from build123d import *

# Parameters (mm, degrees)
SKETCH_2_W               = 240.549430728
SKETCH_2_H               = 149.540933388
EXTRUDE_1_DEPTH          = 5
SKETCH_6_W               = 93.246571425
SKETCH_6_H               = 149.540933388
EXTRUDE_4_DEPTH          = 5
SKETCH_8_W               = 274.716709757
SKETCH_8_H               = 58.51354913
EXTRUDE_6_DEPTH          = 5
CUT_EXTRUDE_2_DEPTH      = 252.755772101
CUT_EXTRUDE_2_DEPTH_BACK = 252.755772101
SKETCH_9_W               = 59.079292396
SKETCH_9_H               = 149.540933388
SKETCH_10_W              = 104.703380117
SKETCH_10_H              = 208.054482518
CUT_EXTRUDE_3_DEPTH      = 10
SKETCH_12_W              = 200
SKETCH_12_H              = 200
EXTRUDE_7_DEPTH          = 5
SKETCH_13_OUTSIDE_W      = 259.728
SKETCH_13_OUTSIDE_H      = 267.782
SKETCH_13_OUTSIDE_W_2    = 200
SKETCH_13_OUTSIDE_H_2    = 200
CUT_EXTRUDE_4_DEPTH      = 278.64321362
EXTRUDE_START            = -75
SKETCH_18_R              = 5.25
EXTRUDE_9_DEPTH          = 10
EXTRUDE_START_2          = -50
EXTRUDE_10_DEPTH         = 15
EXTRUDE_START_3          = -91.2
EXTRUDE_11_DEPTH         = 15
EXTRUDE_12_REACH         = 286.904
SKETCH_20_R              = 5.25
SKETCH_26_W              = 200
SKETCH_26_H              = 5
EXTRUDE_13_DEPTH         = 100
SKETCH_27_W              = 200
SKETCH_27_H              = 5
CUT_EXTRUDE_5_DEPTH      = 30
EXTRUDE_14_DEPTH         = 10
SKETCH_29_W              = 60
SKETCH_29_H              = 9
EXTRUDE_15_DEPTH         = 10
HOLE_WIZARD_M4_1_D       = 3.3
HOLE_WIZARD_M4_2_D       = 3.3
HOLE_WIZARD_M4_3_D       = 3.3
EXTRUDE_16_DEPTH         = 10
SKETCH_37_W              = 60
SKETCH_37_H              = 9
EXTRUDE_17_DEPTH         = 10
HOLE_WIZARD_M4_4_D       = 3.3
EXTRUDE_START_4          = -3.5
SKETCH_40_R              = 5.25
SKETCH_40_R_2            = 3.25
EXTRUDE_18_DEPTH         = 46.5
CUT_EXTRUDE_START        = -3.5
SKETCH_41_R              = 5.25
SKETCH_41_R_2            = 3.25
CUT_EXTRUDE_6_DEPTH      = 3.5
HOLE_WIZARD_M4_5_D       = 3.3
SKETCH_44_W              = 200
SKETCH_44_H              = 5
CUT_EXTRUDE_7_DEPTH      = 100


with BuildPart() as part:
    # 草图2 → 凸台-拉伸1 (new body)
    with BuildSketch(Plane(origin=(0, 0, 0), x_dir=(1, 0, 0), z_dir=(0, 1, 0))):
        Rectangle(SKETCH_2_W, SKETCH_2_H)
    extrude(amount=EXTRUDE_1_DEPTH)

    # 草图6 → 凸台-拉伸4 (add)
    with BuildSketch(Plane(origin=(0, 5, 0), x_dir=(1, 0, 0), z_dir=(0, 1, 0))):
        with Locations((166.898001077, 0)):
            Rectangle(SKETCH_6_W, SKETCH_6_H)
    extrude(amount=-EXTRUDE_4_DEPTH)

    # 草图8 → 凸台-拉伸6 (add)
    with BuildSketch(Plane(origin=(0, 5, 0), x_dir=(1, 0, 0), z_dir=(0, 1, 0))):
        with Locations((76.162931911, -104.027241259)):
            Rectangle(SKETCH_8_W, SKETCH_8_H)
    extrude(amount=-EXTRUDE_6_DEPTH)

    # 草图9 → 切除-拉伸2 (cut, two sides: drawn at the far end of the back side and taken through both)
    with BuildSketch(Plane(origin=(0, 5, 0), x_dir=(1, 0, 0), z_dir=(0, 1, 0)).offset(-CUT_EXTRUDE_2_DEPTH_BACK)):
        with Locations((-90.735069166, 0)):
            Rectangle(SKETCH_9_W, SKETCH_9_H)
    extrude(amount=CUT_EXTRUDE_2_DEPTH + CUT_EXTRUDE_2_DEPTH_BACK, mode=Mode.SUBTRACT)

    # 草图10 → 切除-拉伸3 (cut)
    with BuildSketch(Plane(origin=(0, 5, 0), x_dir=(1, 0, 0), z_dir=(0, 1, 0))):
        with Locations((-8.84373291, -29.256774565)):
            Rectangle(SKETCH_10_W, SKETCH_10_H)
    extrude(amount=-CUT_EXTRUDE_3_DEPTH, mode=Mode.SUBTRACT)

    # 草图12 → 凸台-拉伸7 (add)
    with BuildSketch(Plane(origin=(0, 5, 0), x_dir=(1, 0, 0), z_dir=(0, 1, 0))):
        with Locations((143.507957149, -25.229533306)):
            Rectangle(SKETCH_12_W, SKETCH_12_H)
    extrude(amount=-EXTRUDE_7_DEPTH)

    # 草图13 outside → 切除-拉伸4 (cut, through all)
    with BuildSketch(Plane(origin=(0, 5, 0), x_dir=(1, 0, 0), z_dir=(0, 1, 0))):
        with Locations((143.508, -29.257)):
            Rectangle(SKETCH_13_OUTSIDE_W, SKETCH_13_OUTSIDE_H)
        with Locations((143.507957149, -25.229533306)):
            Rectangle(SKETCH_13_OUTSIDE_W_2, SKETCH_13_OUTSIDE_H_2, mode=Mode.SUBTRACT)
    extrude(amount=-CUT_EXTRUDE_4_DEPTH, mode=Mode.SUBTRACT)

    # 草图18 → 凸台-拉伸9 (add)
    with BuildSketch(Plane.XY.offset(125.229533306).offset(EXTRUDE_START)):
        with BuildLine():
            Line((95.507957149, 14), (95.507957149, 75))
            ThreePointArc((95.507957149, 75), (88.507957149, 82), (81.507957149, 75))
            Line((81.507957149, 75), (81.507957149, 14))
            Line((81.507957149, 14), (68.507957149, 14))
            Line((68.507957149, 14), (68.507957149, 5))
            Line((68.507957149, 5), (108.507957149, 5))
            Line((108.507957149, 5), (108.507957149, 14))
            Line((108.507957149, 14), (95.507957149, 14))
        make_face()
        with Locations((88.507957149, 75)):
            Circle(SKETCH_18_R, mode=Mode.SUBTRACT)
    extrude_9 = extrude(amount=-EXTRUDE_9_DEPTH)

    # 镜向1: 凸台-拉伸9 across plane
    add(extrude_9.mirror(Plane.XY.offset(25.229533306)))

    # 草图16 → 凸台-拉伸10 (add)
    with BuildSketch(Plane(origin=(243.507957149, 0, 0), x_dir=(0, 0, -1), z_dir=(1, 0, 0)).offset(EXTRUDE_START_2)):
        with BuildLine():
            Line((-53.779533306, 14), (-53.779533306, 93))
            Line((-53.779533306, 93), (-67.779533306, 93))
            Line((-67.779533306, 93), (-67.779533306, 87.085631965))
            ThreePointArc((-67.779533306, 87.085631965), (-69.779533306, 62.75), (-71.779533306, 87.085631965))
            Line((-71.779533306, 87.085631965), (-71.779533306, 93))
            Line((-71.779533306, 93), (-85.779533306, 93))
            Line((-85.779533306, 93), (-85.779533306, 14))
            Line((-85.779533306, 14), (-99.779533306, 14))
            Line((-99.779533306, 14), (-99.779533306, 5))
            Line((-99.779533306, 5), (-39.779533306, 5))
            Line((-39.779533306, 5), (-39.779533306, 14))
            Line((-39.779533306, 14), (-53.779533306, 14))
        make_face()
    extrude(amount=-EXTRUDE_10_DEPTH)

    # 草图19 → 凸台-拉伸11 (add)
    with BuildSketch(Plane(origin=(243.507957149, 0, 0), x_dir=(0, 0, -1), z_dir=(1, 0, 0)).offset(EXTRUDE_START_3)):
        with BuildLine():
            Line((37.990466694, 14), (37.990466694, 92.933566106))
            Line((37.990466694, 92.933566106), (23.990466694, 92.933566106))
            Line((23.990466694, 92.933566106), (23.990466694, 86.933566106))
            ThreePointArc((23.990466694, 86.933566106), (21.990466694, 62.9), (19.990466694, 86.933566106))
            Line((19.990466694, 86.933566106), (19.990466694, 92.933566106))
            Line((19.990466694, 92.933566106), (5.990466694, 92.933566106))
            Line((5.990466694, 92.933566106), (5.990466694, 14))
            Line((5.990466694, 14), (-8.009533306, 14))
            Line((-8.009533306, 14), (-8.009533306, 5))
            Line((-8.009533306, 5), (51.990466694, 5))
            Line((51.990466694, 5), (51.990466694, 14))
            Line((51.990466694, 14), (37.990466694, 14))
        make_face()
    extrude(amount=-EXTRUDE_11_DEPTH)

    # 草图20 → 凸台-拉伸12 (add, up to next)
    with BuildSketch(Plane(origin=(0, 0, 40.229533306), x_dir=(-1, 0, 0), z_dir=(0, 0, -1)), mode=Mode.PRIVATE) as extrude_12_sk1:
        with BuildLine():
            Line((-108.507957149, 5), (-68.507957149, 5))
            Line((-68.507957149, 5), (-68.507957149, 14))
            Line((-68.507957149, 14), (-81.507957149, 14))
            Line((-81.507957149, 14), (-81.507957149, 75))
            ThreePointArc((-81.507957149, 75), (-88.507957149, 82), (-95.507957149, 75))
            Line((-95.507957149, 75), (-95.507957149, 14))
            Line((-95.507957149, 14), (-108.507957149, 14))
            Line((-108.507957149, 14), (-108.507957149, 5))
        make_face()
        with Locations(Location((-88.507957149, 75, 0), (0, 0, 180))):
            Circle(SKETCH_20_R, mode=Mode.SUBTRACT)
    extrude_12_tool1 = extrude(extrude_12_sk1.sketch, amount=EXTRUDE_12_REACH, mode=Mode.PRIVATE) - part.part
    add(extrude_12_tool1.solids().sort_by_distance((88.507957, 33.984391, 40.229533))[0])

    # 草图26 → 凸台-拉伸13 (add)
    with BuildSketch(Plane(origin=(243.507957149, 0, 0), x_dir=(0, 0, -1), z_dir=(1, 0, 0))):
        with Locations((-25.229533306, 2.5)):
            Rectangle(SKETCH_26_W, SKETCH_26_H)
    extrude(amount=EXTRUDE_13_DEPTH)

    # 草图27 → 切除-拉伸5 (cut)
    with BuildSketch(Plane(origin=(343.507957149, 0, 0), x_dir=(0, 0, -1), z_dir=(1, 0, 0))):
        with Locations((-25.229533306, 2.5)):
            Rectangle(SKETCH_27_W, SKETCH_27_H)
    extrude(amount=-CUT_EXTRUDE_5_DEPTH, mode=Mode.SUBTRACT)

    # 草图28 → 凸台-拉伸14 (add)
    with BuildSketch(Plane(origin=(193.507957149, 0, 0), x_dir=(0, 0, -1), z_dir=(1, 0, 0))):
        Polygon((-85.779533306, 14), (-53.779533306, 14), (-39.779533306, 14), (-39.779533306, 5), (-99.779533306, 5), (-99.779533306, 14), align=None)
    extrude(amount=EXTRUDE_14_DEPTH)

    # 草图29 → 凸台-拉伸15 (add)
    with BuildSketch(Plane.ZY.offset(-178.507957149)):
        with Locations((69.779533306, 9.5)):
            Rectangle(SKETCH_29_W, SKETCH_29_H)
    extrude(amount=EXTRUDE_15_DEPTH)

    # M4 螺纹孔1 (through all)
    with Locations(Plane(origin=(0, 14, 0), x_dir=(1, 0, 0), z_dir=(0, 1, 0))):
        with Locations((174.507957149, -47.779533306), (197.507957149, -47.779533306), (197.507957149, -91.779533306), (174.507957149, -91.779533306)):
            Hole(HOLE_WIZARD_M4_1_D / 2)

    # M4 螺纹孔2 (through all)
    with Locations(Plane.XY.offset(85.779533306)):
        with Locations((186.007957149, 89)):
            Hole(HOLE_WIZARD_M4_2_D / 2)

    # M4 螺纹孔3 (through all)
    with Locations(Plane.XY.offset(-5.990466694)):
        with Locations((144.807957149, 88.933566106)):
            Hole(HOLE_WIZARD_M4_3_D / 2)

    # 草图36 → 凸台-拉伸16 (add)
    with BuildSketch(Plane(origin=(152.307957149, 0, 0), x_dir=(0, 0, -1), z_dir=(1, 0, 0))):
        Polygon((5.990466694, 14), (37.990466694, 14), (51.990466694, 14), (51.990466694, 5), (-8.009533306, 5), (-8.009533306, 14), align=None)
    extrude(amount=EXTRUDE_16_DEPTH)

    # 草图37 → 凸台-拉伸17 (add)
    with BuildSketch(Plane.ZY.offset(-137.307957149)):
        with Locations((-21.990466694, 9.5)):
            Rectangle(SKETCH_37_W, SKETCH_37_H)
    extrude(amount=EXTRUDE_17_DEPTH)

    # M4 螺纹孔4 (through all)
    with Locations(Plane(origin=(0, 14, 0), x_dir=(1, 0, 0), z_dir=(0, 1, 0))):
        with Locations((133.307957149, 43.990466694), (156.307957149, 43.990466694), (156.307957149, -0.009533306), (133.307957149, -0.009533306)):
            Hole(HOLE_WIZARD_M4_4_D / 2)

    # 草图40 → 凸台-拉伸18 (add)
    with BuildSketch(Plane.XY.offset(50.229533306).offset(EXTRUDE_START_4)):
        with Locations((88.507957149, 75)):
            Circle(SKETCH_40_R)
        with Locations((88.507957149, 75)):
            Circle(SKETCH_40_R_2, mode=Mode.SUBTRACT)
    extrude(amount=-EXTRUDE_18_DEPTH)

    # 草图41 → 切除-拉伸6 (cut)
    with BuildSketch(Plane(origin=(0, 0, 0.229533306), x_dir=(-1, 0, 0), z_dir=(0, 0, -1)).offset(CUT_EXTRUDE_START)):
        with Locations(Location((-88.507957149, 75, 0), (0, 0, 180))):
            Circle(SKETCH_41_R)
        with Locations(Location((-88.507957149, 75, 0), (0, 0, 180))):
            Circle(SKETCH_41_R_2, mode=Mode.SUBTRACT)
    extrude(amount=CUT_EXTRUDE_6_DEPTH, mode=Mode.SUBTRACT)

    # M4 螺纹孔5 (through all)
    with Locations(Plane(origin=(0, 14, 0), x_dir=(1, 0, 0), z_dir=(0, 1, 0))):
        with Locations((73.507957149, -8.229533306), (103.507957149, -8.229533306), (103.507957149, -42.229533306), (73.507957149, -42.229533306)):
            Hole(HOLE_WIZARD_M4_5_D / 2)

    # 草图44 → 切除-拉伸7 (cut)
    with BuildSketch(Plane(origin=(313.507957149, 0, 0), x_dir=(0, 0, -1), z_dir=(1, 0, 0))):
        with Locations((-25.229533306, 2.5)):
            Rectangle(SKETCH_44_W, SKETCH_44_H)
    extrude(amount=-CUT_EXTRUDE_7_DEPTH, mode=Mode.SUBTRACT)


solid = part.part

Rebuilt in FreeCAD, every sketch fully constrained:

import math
import FreeCAD as App
import Part
import Sketcher
Q = App.Units.Quantity

doc = App.newDocument("Part")
body = doc.addObject("PartDesign::Body", "Body")

sketch1 = body.newObject("Sketcher::SketchObject", "Sketch")
sketch1.AttachmentSupport = (doc.getObject("XZ_Plane"), [""])
sketch1.MapMode = "FlatFace"
sketch1.addGeometry([
    Part.LineSegment(App.Vector(-120, -75, 0), App.Vector(-120, 75, 0)),
    Part.LineSegment(App.Vector(-120, 75, 0), App.Vector(120, 75, 0)),
    Part.LineSegment(App.Vector(120, 75, 0), App.Vector(120, -75, 0)),
    Part.LineSegment(App.Vector(120, -75, 0), App.Vector(-120, -75, 0)),
], False)
sketch1.addConstraint([
    Sketcher.Constraint("Coincident", 0, 2, 1, 1),
    Sketcher.Constraint("Coincident", 1, 2, 2, 1),
    Sketcher.Constraint("Coincident", 2, 2, 3, 1),
    Sketcher.Constraint("Coincident", 3, 2, 0, 1),
    Sketcher.Constraint("Vertical", 0),
    Sketcher.Constraint("Horizontal", 1),
    Sketcher.Constraint("Vertical", 2),
    Sketcher.Constraint("Horizontal", 3),
    Sketcher.Constraint("Symmetric", 0, 2, 2, 2, -1, 1),
    Sketcher.Constraint("DistanceX", 1, 1, 1, 2, Q("240.549431 mm")),
    Sketcher.Constraint("DistanceY", 0, 1, 0, 2, Q("149.540933 mm")),
])
pad1 = body.newObject("PartDesign::Pad", "Pad")
pad1.Profile = sketch1
pad1.Length = 5
pad1.Reversed = True

sketch2 = body.newObject("Sketcher::SketchObject", "Sketch001")
sketch2.AttachmentSupport = (doc.getObject("XZ_Plane"), [""])
sketch2.MapMode = "FlatFace"
sketch2.AttachmentOffset = App.Placement(App.Vector(0, 0, -5), App.Rotation())
sketch2.addGeometry([
    Part.LineSegment(App.Vector(120, -75, 0), App.Vector(120, 75, 0)),
    Part.LineSegment(App.Vector(120, 75, 0), App.Vector(214, 75, 0)),
    Part.LineSegment(App.Vector(214, 75, 0), App.Vector(214, -75, 0)),
    Part.LineSegment(App.Vector(214, -75, 0), App.Vector(120, -75, 0)),
], False)
sketch2.addConstraint([
    Sketcher.Constraint("Coincident", 0, 2, 1, 1),
    Sketcher.Constraint("Coincident", 1, 2, 2, 1),
    Sketcher.Constraint("Coincident", 2, 2, 3, 1),
    Sketcher.Constraint("Coincident", 3, 2, 0, 1),
    Sketcher.Constraint("Vertical", 0),
    Sketcher.Constraint("Horizontal", 1),
    Sketcher.Constraint("Vertical", 2),
    Sketcher.Constraint("Horizontal", 3),
    Sketcher.Constraint("DistanceX", 1, 1, 1, 2, Q("93.246571 mm")),
    Sketcher.Constraint("DistanceY", 0, 1, 0, 2, Q("149.540933 mm")),
    Sketcher.Constraint("DistanceX", -1, 1, 0, 2, Q("120.274715 mm")),
    Sketcher.Constraint("DistanceY", -1, 1, 0, 2, Q("74.770467 mm")),
])
pad2 = body.newObject("PartDesign::Pad", "Pad001")
pad2.Profile = sketch2
pad2.Length = 5

sketch3 = body.newObject("Sketcher::SketchObject", "Sketch002")
sketch3.AttachmentSupport = (doc.getObject("XZ_Plane"), [""])
sketch3.MapMode = "FlatFace"
sketch3.AttachmentOffset = App.Placement(App.Vector(0, 0, -5), App.Rotation())
sketch3.addGeometry([
    Part.LineSegment(App.Vector(-61, 75, 0), App.Vector(-61, 133, 0)),
    Part.LineSegment(App.Vector(-61, 133, 0), App.Vector(214, 133, 0)),
    Part.LineSegment(App.Vector(214, 133, 0), App.Vector(214, 75, 0)),
    Part.LineSegment(App.Vector(214, 75, 0), App.Vector(-61, 75, 0)),
], False)
sketch3.addConstraint([
    Sketcher.Constraint("Coincident", 0, 2, 1, 1),
    Sketcher.Constraint("Coincident", 1, 2, 2, 1),
    Sketcher.Constraint("Coincident", 2, 2, 3, 1),
    Sketcher.Constraint("Coincident", 3, 2, 0, 1),
    Sketcher.Constraint("Vertical", 0),
    Sketcher.Constraint("Horizontal", 1),
    Sketcher.Constraint("Vertical", 2),
    Sketcher.Constraint("Horizontal", 3),
    Sketcher.Constraint("DistanceX", 1, 1, 1, 2, Q("274.71671 mm")),
    Sketcher.Constraint("DistanceY", 0, 1, 0, 2, Q("58.513549 mm")),
    Sketcher.Constraint("DistanceX", 0, 2, -1, 1, Q("61.195423 mm")),
    Sketcher.Constraint("DistanceY", -1, 1, 0, 2, Q("133.284016 mm")),
])
pad3 = body.newObject("PartDesign::Pad", "Pad002")
pad3.Profile = sketch3
pad3.Length = 5

sketch4 = body.newObject("Sketcher::SketchObject", "Sketch003")
sketch4.AttachmentSupport = (doc.getObject("XZ_Plane"), [""])
sketch4.MapMode = "FlatFace"
sketch4.AttachmentOffset = App.Placement(App.Vector(0, 0, -5), App.Rotation())
sketch4.addGeometry([
    Part.LineSegment(App.Vector(-120, -75, 0), App.Vector(-120, 75, 0)),
    Part.LineSegment(App.Vector(-120, 75, 0), App.Vector(-61, 75, 0)),
    Part.LineSegment(App.Vector(-61, 75, 0), App.Vector(-61, -75, 0)),
    Part.LineSegment(App.Vector(-61, -75, 0), App.Vector(-120, -75, 0)),
], False)
sketch4.addConstraint([
    Sketcher.Constraint("Coincident", 0, 2, 1, 1),
    Sketcher.Constraint("Coincident", 1, 2, 2, 1),
    Sketcher.Constraint("Coincident", 2, 2, 3, 1),
    Sketcher.Constraint("Coincident", 3, 2, 0, 1),
    Sketcher.Constraint("Vertical", 0),
    Sketcher.Constraint("Horizontal", 1),
    Sketcher.Constraint("Vertical", 2),
    Sketcher.Constraint("Horizontal", 3),
    Sketcher.Constraint("DistanceX", 1, 1, 1, 2, Q("59.079292 mm")),
    Sketcher.Constraint("DistanceY", 0, 1, 0, 2, Q("149.540933 mm")),
    Sketcher.Constraint("DistanceX", 0, 2, -1, 1, Q("120.274715 mm")),
    Sketcher.Constraint("DistanceY", -1, 1, 0, 2, Q("74.770467 mm")),
])
pocket1 = body.newObject("PartDesign::Pocket", "Pocket")
pocket1.Profile = sketch4
pocket1.Type = "ThroughAll"
pocket1.Midplane = True

sketch5 = body.newObject("Sketcher::SketchObject", "Sketch004")
sketch5.AttachmentSupport = (doc.getObject("XZ_Plane"), [""])
sketch5.MapMode = "FlatFace"
sketch5.AttachmentOffset = App.Placement(App.Vector(0, 0, -5), App.Rotation())
sketch5.addGeometry([
    Part.LineSegment(App.Vector(-61, -75, 0), App.Vector(-61, 133, 0)),
    Part.LineSegment(App.Vector(-61, 133, 0), App.Vector(44, 133, 0)),
    Part.LineSegment(App.Vector(44, 133, 0), App.Vector(44, -75, 0)),
    Part.LineSegment(App.Vector(44, -75, 0), App.Vector(-61, -75, 0)),
], False)
sketch5.addConstraint([
    Sketcher.Constraint("Coincident", 0, 2, 1, 1),
    Sketcher.Constraint("Coincident", 1, 2, 2, 1),
    Sketcher.Constraint("Coincident", 2, 2, 3, 1),
    Sketcher.Constraint("Coincident", 3, 2, 0, 1),
    Sketcher.Constraint("Vertical", 0),
    Sketcher.Constraint("Horizontal", 1),
    Sketcher.Constraint("Vertical", 2),
    Sketcher.Constraint("Horizontal", 3),
    Sketcher.Constraint("DistanceX", 1, 1, 1, 2, Q("104.70338 mm")),
    Sketcher.Constraint("DistanceY", 0, 1, 0, 2, Q("208.054483 mm")),
    Sketcher.Constraint("DistanceX", 0, 2, -1, 1, Q("61.195423 mm")),
    Sketcher.Constraint("DistanceY", -1, 1, 0, 2, Q("133.284016 mm")),
])
pocket2 = body.newObject("PartDesign::Pocket", "Pocket001")
pocket2.Profile = sketch5
pocket2.Length = 10
pocket2.Reversed = True

sketch6 = body.newObject("Sketcher::SketchObject", "Sketch005")
sketch6.AttachmentSupport = (doc.getObject("XZ_Plane"), [""])
sketch6.MapMode = "FlatFace"
sketch6.AttachmentOffset = App.Placement(App.Vector(0, 0, -5), App.Rotation())
sketch6.addGeometry([
    Part.LineSegment(App.Vector(44, -75, 0), App.Vector(44, 125, 0)),
    Part.LineSegment(App.Vector(44, 125, 0), App.Vector(244, 125, 0)),
    Part.LineSegment(App.Vector(244, 125, 0), App.Vector(244, -75, 0)),
    Part.LineSegment(App.Vector(244, -75, 0), App.Vector(44, -75, 0)),
], False)
sketch6.addConstraint([
    Sketcher.Constraint("Coincident", 0, 2, 1, 1),
    Sketcher.Constraint("Coincident", 1, 2, 2, 1),
    Sketcher.Constraint("Coincident", 2, 2, 3, 1),
    Sketcher.Constraint("Coincident", 3, 2, 0, 1),
    Sketcher.Constraint("Vertical", 0),
    Sketcher.Constraint("Horizontal", 1),
    Sketcher.Constraint("Vertical", 2),
    Sketcher.Constraint("Horizontal", 3),
    Sketcher.Constraint("Equal", 3, 0),
    Sketcher.Constraint("DistanceX", 1, 1, 1, 2, Q("200 mm")),
    Sketcher.Constraint("DistanceX", -1, 1, 0, 2, Q("43.507957 mm")),
    Sketcher.Constraint("DistanceY", -1, 1, 0, 2, Q("125.229533 mm")),
])
pad4 = body.newObject("PartDesign::Pad", "Pad003")
pad4.Profile = sketch6
pad4.Length = 5

sketch7 = body.newObject("Sketcher::SketchObject", "Sketch006")
sketch7.AttachmentSupport = (doc.getObject("XZ_Plane"), [""])
sketch7.MapMode = "FlatFace"
sketch7.AttachmentOffset = App.Placement(App.Vector(0, 0, -5), App.Rotation())
sketch7.addGeometry([
    Part.LineSegment(App.Vector(14, -105, 0), App.Vector(14, 163, 0)),
    Part.LineSegment(App.Vector(14, 163, 0), App.Vector(273, 163, 0)),
    Part.LineSegment(App.Vector(273, 163, 0), App.Vector(273, -105, 0)),
    Part.LineSegment(App.Vector(273, -105, 0), App.Vector(14, -105, 0)),
    Part.LineSegment(App.Vector(244, 125, 0), App.Vector(44, 125, 0)),
    Part.LineSegment(App.Vector(44, 125, 0), App.Vector(44, -75, 0)),
    Part.LineSegment(App.Vector(44, -75, 0), App.Vector(244, -75, 0)),
    Part.LineSegment(App.Vector(244, -75, 0), App.Vector(244, 125, 0)),
], False)
sketch7.addConstraint([
    Sketcher.Constraint("Coincident", 0, 2, 1, 1),
    Sketcher.Constraint("Coincident", 1, 2, 2, 1),
    Sketcher.Constraint("Coincident", 2, 2, 3, 1),
    Sketcher.Constraint("Coincident", 3, 2, 0, 1),
    Sketcher.Constraint("Coincident", 4, 2, 5, 1),
    Sketcher.Constraint("Coincident", 5, 2, 6, 1),
    Sketcher.Constraint("Coincident", 6, 2, 7, 1),
    Sketcher.Constraint("Coincident", 7, 2, 4, 1),
    Sketcher.Constraint("Vertical", 0),
    Sketcher.Constraint("Horizontal", 1),
    Sketcher.Constraint("Vertical", 2),
    Sketcher.Constraint("Horizontal", 3),
    Sketcher.Constraint("Horizontal", 4),
    Sketcher.Constraint("Vertical", 5),
    Sketcher.Constraint("Horizontal", 6),
    Sketcher.Constraint("Vertical", 7),
    Sketcher.Constraint("Equal", 6, 5),
    Sketcher.Constraint("DistanceX", 4, 2, 4, 1, Q("200 mm")),
    Sketcher.Constraint("DistanceX", 1, 1, 1, 2, Q("259.728 mm")),
    Sketcher.Constraint("DistanceY", 0, 1, 0, 2, Q("267.782 mm")),
    Sketcher.Constraint("DistanceX", -1, 1, 0, 2, Q("13.644 mm")),
    Sketcher.Constraint("DistanceY", -1, 1, 0, 2, Q("163.148 mm")),
    Sketcher.Constraint("DistanceX", -1, 1, 4, 2, Q("43.507957 mm")),
    Sketcher.Constraint("DistanceY", -1, 1, 4, 2, Q("125.229533 mm")),
])
pocket3 = body.newObject("PartDesign::Pocket", "Pocket002")
pocket3.Profile = sketch7
pocket3.Type = "ThroughAll"
pocket3.Reversed = True

sketch8 = body.newObject("Sketcher::SketchObject", "Sketch007")
sketch8.AttachmentSupport = (doc.getObject("XY_Plane"), [""])
sketch8.MapMode = "FlatFace"
sketch8.AttachmentOffset = App.Placement(App.Vector(0, 0, 50.229533), App.Rotation())
sketch8.addGeometry([
    Part.LineSegment(App.Vector(96, 14, 0), App.Vector(96, 75, 0)),
    Part.ArcOfCircle(Part.Circle(App.Vector(89, 75, 0), App.Vector(0, 0, 1), 7), math.radians(0), math.radians(180)),
    Part.LineSegment(App.Vector(82, 75, 0), App.Vector(82, 14, 0)),
    Part.LineSegment(App.Vector(82, 14, 0), App.Vector(69, 14, 0)),
    Part.LineSegment(App.Vector(69, 14, 0), App.Vector(69, 5, 0)),
    Part.LineSegment(App.Vector(69, 5, 0), App.Vector(109, 5, 0)),
    Part.LineSegment(App.Vector(109, 5, 0), App.Vector(109, 14, 0)),
    Part.LineSegment(App.Vector(109, 14, 0), App.Vector(96, 14, 0)),
    Part.Circle(App.Vector(89, 75, 0), App.Vector(0, 0, 1), 5),
], False)
sketch8.addConstraint([
    Sketcher.Constraint("Tangent", 0, 2, 1, 1),
    Sketcher.Constraint("Tangent", 1, 2, 2, 1),
    Sketcher.Constraint("Coincident", 2, 2, 3, 1),
    Sketcher.Constraint("Coincident", 3, 2, 4, 1),
    Sketcher.Constraint("Coincident", 4, 2, 5, 1),
    Sketcher.Constraint("Coincident", 5, 2, 6, 1),
    Sketcher.Constraint("Coincident", 6, 2, 7, 1),
    Sketcher.Constraint("Coincident", 7, 2, 0, 1),
    Sketcher.Constraint("Vertical", 0),
    Sketcher.Constraint("Vertical", 2),
    Sketcher.Constraint("Horizontal", 3),
    Sketcher.Constraint("Vertical", 4),
    Sketcher.Constraint("Horizontal", 5),
    Sketcher.Constraint("Vertical", 6),
    Sketcher.Constraint("Horizontal", 7),
    Sketcher.Constraint("Coincident", 8, 3, 1, 3),
    Sketcher.Constraint("Horizontal", 3, 2, 6, 2),
    Sketcher.Constraint("Equal", 3, 7),
    Sketcher.Constraint("Radius", 1, Q("7 mm")),
    Sketcher.Constraint("Diameter", 8, Q("10.5 mm")),
    Sketcher.Constraint("DistanceX", 3, 2, 3, 1, Q("13 mm")),
    Sketcher.Constraint("DistanceY", 0, 1, 0, 2, Q("61 mm")),
    Sketcher.Constraint("DistanceY", 4, 2, 4, 1, Q("9 mm")),
    Sketcher.Constraint("DistanceY", -1, 1, 1, 3, Q("75 mm")),
    Sketcher.Constraint("DistanceX", -1, 1, 1, 3, Q("88.507957 mm")),
])
pad5 = body.newObject("PartDesign::Pad", "Pad004")
pad5.Profile = sketch8
pad5.Length = 10
pad5.Reversed = True
doc.recompute()

datumplane = body.newObject("PartDesign::Plane", "DatumPlane")
datumplane.AttachmentSupport = (doc.getObject("XY_Plane"), [""])
datumplane.MapMode = "FlatFace"
datumplane.AttachmentOffset = App.Placement(App.Vector(0, 0, 25.229533), App.Rotation())
mirrored = body.newObject("PartDesign::Mirrored", "Mirrored")
mirrored.Originals = [pad5]
mirrored.MirrorPlane = (datumplane, [""])
body.Tip = mirrored

sketch9 = body.newObject("Sketcher::SketchObject", "Sketch008")
sketch9.AttachmentSupport = (doc.getObject("YZ_Plane"), [""])
sketch9.MapMode = "FlatFace"
sketch9.AttachmentOffset = App.Placement(App.Vector(0, 0, 193.507957), App.Rotation())
sketch9.addGeometry([
    Part.LineSegment(App.Vector(14, 53.8, 0), App.Vector(93, 53.8, 0)),
    Part.LineSegment(App.Vector(93, 53.8, 0), App.Vector(93, 67.8, 0)),
    Part.LineSegment(App.Vector(93, 67.8, 0), App.Vector(87.1, 67.8, 0)),
    Part.ArcOfCircle(Part.Circle(App.Vector(75, 69.8, 0), App.Vector(0, 0, 1), 12.2), math.radians(9), math.radians(351)),
    Part.LineSegment(App.Vector(87.1, 71.8, 0), App.Vector(93, 71.8, 0)),
    Part.LineSegment(App.Vector(93, 71.8, 0), App.Vector(93, 85.8, 0)),
    Part.LineSegment(App.Vector(93, 85.8, 0), App.Vector(14, 85.8, 0)),
    Part.LineSegment(App.Vector(14, 85.8, 0), App.Vector(14, 99.8, 0)),
    Part.LineSegment(App.Vector(14, 99.8, 0), App.Vector(5, 99.8, 0)),
    Part.LineSegment(App.Vector(5, 99.8, 0), App.Vector(5, 39.8, 0)),
    Part.LineSegment(App.Vector(5, 39.8, 0), App.Vector(14, 39.8, 0)),
    Part.LineSegment(App.Vector(14, 39.8, 0), App.Vector(14, 53.8, 0)),
], False)
sketch9.addConstraint([
    Sketcher.Constraint("Coincident", 0, 2, 1, 1),
    Sketcher.Constraint("Coincident", 1, 2, 2, 1),
    Sketcher.Constraint("Coincident", 2, 2, 3, 2),
    Sketcher.Constraint("Coincident", 3, 1, 4, 1),
    Sketcher.Constraint("Coincident", 4, 2, 5, 1),
    Sketcher.Constraint("Coincident", 5, 2, 6, 1),
    Sketcher.Constraint("Coincident", 6, 2, 7, 1),
    Sketcher.Constraint("Coincident", 7, 2, 8, 1),
    Sketcher.Constraint("Coincident", 8, 2, 9, 1),
    Sketcher.Constraint("Coincident", 9, 2, 10, 1),
    Sketcher.Constraint("Coincident", 10, 2, 11, 1),
    Sketcher.Constraint("Coincident", 11, 2, 0, 1),
    Sketcher.Constraint("Horizontal", 0),
    Sketcher.Constraint("Vertical", 1),
    Sketcher.Constraint("Horizontal", 2),
    Sketcher.Constraint("Horizontal", 4),
    Sketcher.Constraint("Vertical", 5),
    Sketcher.Constraint("Horizontal", 6),
    Sketcher.Constraint("Vertical", 7),
    Sketcher.Constraint("Horizontal", 8),
    Sketcher.Constraint("Vertical", 9),
    Sketcher.Constraint("Horizontal", 10),
    Sketcher.Constraint("Vertical", 11),
    Sketcher.Constraint("Vertical", 2, 2, 3, 1),
    Sketcher.Constraint("Vertical", 1, 2, 4, 2),
    Sketcher.Constraint("Vertical", 7, 2, 10, 2),
    Sketcher.Constraint("Equal", 1, 5),
    Sketcher.Constraint("Equal", 5, 7),
    Sketcher.Constraint("Equal", 7, 11),
    Sketcher.Constraint("DistanceX", 0, 1, 0, 2, Q("79 mm")),
    Sketcher.Constraint("DistanceX", 8, 2, 8, 1, Q("9 mm")),
    Sketcher.Constraint("DistanceY", 1, 1, 1, 2, Q("14 mm")),
    Sketcher.Constraint("DistanceY", 9, 2, 9, 1, Q("60 mm")),
    Sketcher.Constraint("Radius", 3, Q("12.25 mm")),
    Sketcher.Constraint("DistanceX", -1, 1, 3, 3, Q("75 mm")),
    Sketcher.Constraint("DistanceX", -1, 1, 0, 2, Q("93 mm")),
    Sketcher.Constraint("DistanceY", -1, 1, 3, 3, Q("69.779533 mm")),
])
pad6 = body.newObject("PartDesign::Pad", "Pad005")
pad6.Profile = sketch9
pad6.Length = 15
pad6.Reversed = True

sketch10 = body.newObject("Sketcher::SketchObject", "Sketch009")
sketch10.AttachmentSupport = (doc.getObject("YZ_Plane"), [""])
sketch10.MapMode = "FlatFace"
sketch10.AttachmentOffset = App.Placement(App.Vector(0, 0, 152.307957), App.Rotation())
sketch10.addGeometry([
    Part.LineSegment(App.Vector(14, -38, 0), App.Vector(92.9, -38, 0)),
    Part.LineSegment(App.Vector(92.9, -38, 0), App.Vector(92.9, -24, 0)),
    Part.LineSegment(App.Vector(92.9, -24, 0), App.Vector(86.9, -24, 0)),
    Part.ArcOfCircle(Part.Circle(App.Vector(75, -22, 0), App.Vector(0, 0, 1), 12.1), math.radians(10), math.radians(350)),
    Part.LineSegment(App.Vector(86.9, -20, 0), App.Vector(92.9, -20, 0)),
    Part.LineSegment(App.Vector(92.9, -20, 0), App.Vector(92.9, -6, 0)),
    Part.LineSegment(App.Vector(92.9, -6, 0), App.Vector(14, -6, 0)),
    Part.LineSegment(App.Vector(14, -6, 0), App.Vector(14, 8, 0)),
    Part.LineSegment(App.Vector(14, 8, 0), App.Vector(5, 8, 0)),
    Part.LineSegment(App.Vector(5, 8, 0), App.Vector(5, -52, 0)),
    Part.LineSegment(App.Vector(5, -52, 0), App.Vector(14, -52, 0)),
    Part.LineSegment(App.Vector(14, -52, 0), App.Vector(14, -38, 0)),
], False)
sketch10.addConstraint([
    Sketcher.Constraint("Coincident", 0, 2, 1, 1),
    Sketcher.Constraint("Coincident", 1, 2, 2, 1),
    Sketcher.Constraint("Coincident", 2, 2, 3, 2),
    Sketcher.Constraint("Coincident", 3, 1, 4, 1),
    Sketcher.Constraint("Coincident", 4, 2, 5, 1),
    Sketcher.Constraint("Coincident", 5, 2, 6, 1),
    Sketcher.Constraint("Coincident", 6, 2, 7, 1),
    Sketcher.Constraint("Coincident", 7, 2, 8, 1),
    Sketcher.Constraint("Coincident", 8, 2, 9, 1),
    Sketcher.Constraint("Coincident", 9, 2, 10, 1),
    Sketcher.Constraint("Coincident", 10, 2, 11, 1),
    Sketcher.Constraint("Coincident", 11, 2, 0, 1),
    Sketcher.Constraint("Horizontal", 0),
    Sketcher.Constraint("Vertical", 1),
    Sketcher.Constraint("Horizontal", 2),
    Sketcher.Constraint("Horizontal", 4),
    Sketcher.Constraint("Vertical", 5),
    Sketcher.Constraint("Horizontal", 6),
    Sketcher.Constraint("Vertical", 7),
    Sketcher.Constraint("Horizontal", 8),
    Sketcher.Constraint("Vertical", 9),
    Sketcher.Constraint("Horizontal", 10),
    Sketcher.Constraint("Vertical", 11),
    Sketcher.Constraint("Vertical", 2, 2, 3, 1),
    Sketcher.Constraint("Vertical", 1, 2, 4, 2),
    Sketcher.Constraint("Vertical", 7, 2, 10, 2),
    Sketcher.Constraint("Equal", 1, 5),
    Sketcher.Constraint("Equal", 5, 7),
    Sketcher.Constraint("Equal", 7, 11),
    Sketcher.Constraint("Radius", 3, Q("12.1 mm")),
    Sketcher.Constraint("DistanceX", 2, 2, 2, 1, Q("6 mm")),
    Sketcher.Constraint("DistanceX", 8, 2, 8, 1, Q("9 mm")),
    Sketcher.Constraint("DistanceY", 1, 1, 1, 2, Q("14 mm")),
    Sketcher.Constraint("DistanceY", 9, 2, 9, 1, Q("60 mm")),
    Sketcher.Constraint("DistanceX", -1, 1, 3, 3, Q("75 mm")),
    Sketcher.Constraint("DistanceX", -1, 1, 6, 2, Q("14 mm")),
    Sketcher.Constraint("DistanceY", 3, 3, -1, 1, Q("21.990467 mm")),
])
pad7 = body.newObject("PartDesign::Pad", "Pad006")
pad7.Profile = sketch10
pad7.Length = 15
pad7.Reversed = True

sketch11 = body.newObject("Sketcher::SketchObject", "Sketch010")
sketch11.AttachmentSupport = (doc.getObject("XY_Plane"), [""])
sketch11.MapMode = "FlatFace"
sketch11.AttachmentOffset = App.Placement(App.Vector(0, 0, 40.229533), App.Rotation())
sketch11.addGeometry([
    Part.LineSegment(App.Vector(109, 5, 0), App.Vector(69, 5, 0)),
    Part.LineSegment(App.Vector(69, 5, 0), App.Vector(69, 14, 0)),
    Part.LineSegment(App.Vector(69, 14, 0), App.Vector(82, 14, 0)),
    Part.LineSegment(App.Vector(82, 14, 0), App.Vector(82, 75, 0)),
    Part.ArcOfCircle(Part.Circle(App.Vector(89, 75, 0), App.Vector(0, 0, 1), 7), math.radians(0), math.radians(180)),
    Part.LineSegment(App.Vector(96, 75, 0), App.Vector(96, 14, 0)),
    Part.LineSegment(App.Vector(96, 14, 0), App.Vector(109, 14, 0)),
    Part.LineSegment(App.Vector(109, 14, 0), App.Vector(109, 5, 0)),
    Part.Circle(App.Vector(89, 75, 0), App.Vector(0, 0, 1), 5),
], False)
sketch11.addConstraint([
    Sketcher.Constraint("Coincident", 0, 2, 1, 1),
    Sketcher.Constraint("Coincident", 1, 2, 2, 1),
    Sketcher.Constraint("Coincident", 2, 2, 3, 1),
    Sketcher.Constraint("Tangent", 3, 2, 4, 2),
    Sketcher.Constraint("Tangent", 4, 1, 5, 1),
    Sketcher.Constraint("Coincident", 5, 2, 6, 1),
    Sketcher.Constraint("Coincident", 6, 2, 7, 1),
    Sketcher.Constraint("Coincident", 7, 2, 0, 1),
    Sketcher.Constraint("Horizontal", 0),
    Sketcher.Constraint("Vertical", 1),
    Sketcher.Constraint("Horizontal", 2),
    Sketcher.Constraint("Vertical", 3),
    Sketcher.Constraint("Vertical", 5),
    Sketcher.Constraint("Horizontal", 6),
    Sketcher.Constraint("Vertical", 7),
    Sketcher.Constraint("Coincident", 8, 3, 4, 3),
    Sketcher.Constraint("Horizontal", 2, 2, 5, 2),
    Sketcher.Constraint("Equal", 2, 6),
    Sketcher.Constraint("Radius", 4, Q("7 mm")),
    Sketcher.Constraint("Diameter", 8, Q("10.5 mm")),
    Sketcher.Constraint("DistanceX", 0, 2, 0, 1, Q("40 mm")),
    Sketcher.Constraint("DistanceY", 1, 1, 1, 2, Q("9 mm")),
    Sketcher.Constraint("DistanceY", 3, 1, 3, 2, Q("61 mm")),
    Sketcher.Constraint("DistanceY", -1, 1, 4, 3, Q("75 mm")),
    Sketcher.Constraint("DistanceX", -1, 1, 4, 3, Q("88.507957 mm")),
])
pad8 = body.newObject("PartDesign::Pad", "Pad007")
pad8.Profile = sketch11
pad8.Type = "UpToFirst"
pad8.Reversed = True

sketch12 = body.newObject("Sketcher::SketchObject", "Sketch011")
sketch12.AttachmentSupport = (doc.getObject("YZ_Plane"), [""])
sketch12.MapMode = "FlatFace"
sketch12.AttachmentOffset = App.Placement(App.Vector(0, 0, 243.507957), App.Rotation())
sketch12.addGeometry([
    Part.LineSegment(App.Vector(5, 125, 0), App.Vector(0, 125, 0)),
    Part.LineSegment(App.Vector(0, 125, 0), App.Vector(0, -75, 0)),
    Part.LineSegment(App.Vector(0, -75, 0), App.Vector(5, -75, 0)),
    Part.LineSegment(App.Vector(5, -75, 0), App.Vector(5, 125, 0)),
], False)
sketch12.addConstraint([
    Sketcher.Constraint("Coincident", 0, 2, 1, 1),
    Sketcher.Constraint("Coincident", 1, 2, 2, 1),
    Sketcher.Constraint("Coincident", 2, 2, 3, 1),
    Sketcher.Constraint("Coincident", 3, 2, 0, 1),
    Sketcher.Constraint("Horizontal", 0),
    Sketcher.Constraint("Vertical", 1),
    Sketcher.Constraint("Horizontal", 2),
    Sketcher.Constraint("Vertical", 3),
    Sketcher.Constraint("PointOnObject", 0, 2, -2),
    Sketcher.Constraint("DistanceX", 0, 2, 0, 1, Q("5 mm")),
    Sketcher.Constraint("DistanceY", 1, 2, 1, 1, Q("200 mm")),
    Sketcher.Constraint("DistanceY", -1, 1, 0, 2, Q("125.229533 mm")),
])
pad9 = body.newObject("PartDesign::Pad", "Pad008")
pad9.Profile = sketch12
pad9.Length = 100

sketch13 = body.newObject("Sketcher::SketchObject", "Sketch012")
sketch13.AttachmentSupport = (doc.getObject("YZ_Plane"), [""])
sketch13.MapMode = "FlatFace"
sketch13.AttachmentOffset = App.Placement(App.Vector(0, 0, 343.507957), App.Rotation())
sketch13.addGeometry([
    Part.LineSegment(App.Vector(5, 125, 0), App.Vector(0, 125, 0)),
    Part.LineSegment(App.Vector(0, 125, 0), App.Vector(0, -75, 0)),
    Part.LineSegment(App.Vector(0, -75, 0), App.Vector(5, -75, 0)),
    Part.LineSegment(App.Vector(5, -75, 0), App.Vector(5, 125, 0)),
], False)
sketch13.addConstraint([
    Sketcher.Constraint("Coincident", 0, 2, 1, 1),
    Sketcher.Constraint("Coincident", 1, 2, 2, 1),
    Sketcher.Constraint("Coincident", 2, 2, 3, 1),
    Sketcher.Constraint("Coincident", 3, 2, 0, 1),
    Sketcher.Constraint("Horizontal", 0),
    Sketcher.Constraint("Vertical", 1),
    Sketcher.Constraint("Horizontal", 2),
    Sketcher.Constraint("Vertical", 3),
    Sketcher.Constraint("PointOnObject", 0, 2, -2),
    Sketcher.Constraint("DistanceX", 0, 2, 0, 1, Q("5 mm")),
    Sketcher.Constraint("DistanceY", 1, 2, 1, 1, Q("200 mm")),
    Sketcher.Constraint("DistanceY", -1, 1, 0, 2, Q("125.229533 mm")),
])
pocket4 = body.newObject("PartDesign::Pocket", "Pocket003")
pocket4.Profile = sketch13
pocket4.Length = 30

sketch14 = body.newObject("Sketcher::SketchObject", "Sketch013")
sketch14.AttachmentSupport = (doc.getObject("YZ_Plane"), [""])
sketch14.MapMode = "FlatFace"
sketch14.AttachmentOffset = App.Placement(App.Vector(0, 0, 193.507957), App.Rotation())
sketch14.addGeometry([
    Part.LineSegment(App.Vector(14, 40, 0), App.Vector(14, 100, 0)),
    Part.LineSegment(App.Vector(14, 100, 0), App.Vector(5, 100, 0)),
    Part.LineSegment(App.Vector(5, 100, 0), App.Vector(5, 40, 0)),
    Part.LineSegment(App.Vector(5, 40, 0), App.Vector(14, 40, 0)),
], False)
sketch14.addConstraint([
    Sketcher.Constraint("Coincident", 0, 2, 1, 1),
    Sketcher.Constraint("Coincident", 1, 2, 2, 1),
    Sketcher.Constraint("Coincident", 2, 2, 3, 1),
    Sketcher.Constraint("Coincident", 3, 2, 0, 1),
    Sketcher.Constraint("Vertical", 0),
    Sketcher.Constraint("Horizontal", 1),
    Sketcher.Constraint("Vertical", 2),
    Sketcher.Constraint("Horizontal", 3),
    Sketcher.Constraint("DistanceX", 1, 2, 1, 1, Q("9 mm")),
    Sketcher.Constraint("DistanceY", 0, 1, 0, 2, Q("60 mm")),
    Sketcher.Constraint("DistanceX", -1, 1, 0, 2, Q("14 mm")),
    Sketcher.Constraint("DistanceY", -1, 1, 0, 2, Q("99.779533 mm")),
])
pad10 = body.newObject("PartDesign::Pad", "Pad009")
pad10.Profile = sketch14
pad10.Length = 10

sketch15 = body.newObject("Sketcher::SketchObject", "Sketch014")
sketch15.AttachmentSupport = (doc.getObject("YZ_Plane"), [""])
sketch15.MapMode = "FlatFace"
sketch15.AttachmentOffset = App.Placement(App.Vector(0, 0, 178.507957), App.Rotation())
sketch15.addGeometry([
    Part.LineSegment(App.Vector(14, 40, 0), App.Vector(5, 40, 0)),
    Part.LineSegment(App.Vector(5, 40, 0), App.Vector(5, 100, 0)),
    Part.LineSegment(App.Vector(5, 100, 0), App.Vector(14, 100, 0)),
    Part.LineSegment(App.Vector(14, 100, 0), App.Vector(14, 40, 0)),
], False)
sketch15.addConstraint([
    Sketcher.Constraint("Coincident", 0, 2, 1, 1),
    Sketcher.Constraint("Coincident", 1, 2, 2, 1),
    Sketcher.Constraint("Coincident", 2, 2, 3, 1),
    Sketcher.Constraint("Coincident", 3, 2, 0, 1),
    Sketcher.Constraint("Horizontal", 0),
    Sketcher.Constraint("Vertical", 1),
    Sketcher.Constraint("Horizontal", 2),
    Sketcher.Constraint("Vertical", 3),
    Sketcher.Constraint("DistanceX", 0, 2, 0, 1, Q("9 mm")),
    Sketcher.Constraint("DistanceY", 1, 1, 1, 2, Q("60 mm")),
    Sketcher.Constraint("DistanceX", -1, 1, 0, 2, Q("5 mm")),
    Sketcher.Constraint("DistanceY", -1, 1, 0, 2, Q("39.779533 mm")),
])
pad11 = body.newObject("PartDesign::Pad", "Pad010")
pad11.Profile = sketch15
pad11.Length = 10
pad11.Reversed = True

sketch16 = body.newObject("Sketcher::SketchObject", "Sketch015")
sketch16.AttachmentSupport = (doc.getObject("XZ_Plane"), [""])
sketch16.MapMode = "FlatFace"
sketch16.AttachmentOffset = App.Placement(App.Vector(0, 0, -14), App.Rotation())
sketch16.addGeometry([
    Part.Circle(App.Vector(174.5, 47.8, 0), App.Vector(0, 0, 1), 1.6),
    Part.Circle(App.Vector(197.5, 47.8, 0), App.Vector(0, 0, 1), 1.6),
    Part.Circle(App.Vector(197.5, 91.8, 0), App.Vector(0, 0, 1), 1.6),
    Part.Circle(App.Vector(174.5, 91.8, 0), App.Vector(0, 0, 1), 1.6),
], False)
sketch16.addConstraint([
    Sketcher.Constraint("Equal", 0, 1),
    Sketcher.Constraint("Equal", 1, 2),
    Sketcher.Constraint("Equal", 2, 3),
    Sketcher.Constraint("Horizontal", 0, 3, 1, 3),
    Sketcher.Constraint("Horizontal", 2, 3, 3, 3),
    Sketcher.Constraint("Vertical", 1, 3, 2, 3),
    Sketcher.Constraint("Vertical", 0, 3, 3, 3),
    Sketcher.Constraint("Diameter", 0, Q("3.3 mm")),
    Sketcher.Constraint("DistanceX", 0, 3, 1, 3, Q("23 mm")),
    Sketcher.Constraint("DistanceY", 1, 3, 2, 3, Q("44 mm")),
    Sketcher.Constraint("DistanceX", -1, 1, 0, 3, Q("174.507957 mm")),
    Sketcher.Constraint("DistanceY", -1, 1, 0, 3, Q("47.779533 mm")),
])
doc.recompute()
hole = body.newObject("PartDesign::Hole", "Hole")
hole.Profile = sketch16
hole.ThreadType = "None"
hole.Diameter = 3.3
hole.DepthType = "ThroughAll"
hole.Reversed = True

sketch17 = body.newObject("Sketcher::SketchObject", "Sketch016")
sketch17.AttachmentSupport = (doc.getObject("XY_Plane"), [""])
sketch17.MapMode = "FlatFace"
sketch17.AttachmentOffset = App.Placement(App.Vector(0, 0, 85.779533), App.Rotation())
sketch17.addGeometry(Part.Circle(App.Vector(186, 89, 0), App.Vector(0, 0, 1), 1.6), False)
sketch17.addConstraint([
    Sketcher.Constraint("Diameter", 0, Q("3.3 mm")),
    Sketcher.Constraint("DistanceY", -1, 1, 0, 3, Q("89 mm")),
    Sketcher.Constraint("DistanceX", -1, 1, 0, 3, Q("186.007957 mm")),
])
doc.recompute()
hole2 = body.newObject("PartDesign::Hole", "Hole001")
hole2.Profile = sketch17
hole2.ThreadType = "None"
hole2.Diameter = 3.3
hole2.DepthType = "ThroughAll"

sketch18 = body.newObject("Sketcher::SketchObject", "Sketch017")
sketch18.AttachmentSupport = (doc.getObject("XY_Plane"), [""])
sketch18.MapMode = "FlatFace"
sketch18.AttachmentOffset = App.Placement(App.Vector(0, 0, -5.990467), App.Rotation())
sketch18.addGeometry(Part.Circle(App.Vector(144.8, 88.9, 0), App.Vector(0, 0, 1), 1.6), False)
sketch18.addConstraint([
    Sketcher.Constraint("Diameter", 0, Q("3.3 mm")),
    Sketcher.Constraint("DistanceX", -1, 1, 0, 3, Q("144.807957 mm")),
    Sketcher.Constraint("DistanceY", -1, 1, 0, 3, Q("88.933566 mm")),
])
doc.recompute()
hole3 = body.newObject("PartDesign::Hole", "Hole002")
hole3.Profile = sketch18
hole3.ThreadType = "None"
hole3.Diameter = 3.3
hole3.DepthType = "ThroughAll"

sketch19 = body.newObject("Sketcher::SketchObject", "Sketch018")
sketch19.AttachmentSupport = (doc.getObject("YZ_Plane"), [""])
sketch19.MapMode = "FlatFace"
sketch19.AttachmentOffset = App.Placement(App.Vector(0, 0, 152.307957), App.Rotation())
sketch19.addGeometry([
    Part.LineSegment(App.Vector(14, -52, 0), App.Vector(14, 8, 0)),
    Part.LineSegment(App.Vector(14, 8, 0), App.Vector(5, 8, 0)),
    Part.LineSegment(App.Vector(5, 8, 0), App.Vector(5, -52, 0)),
    Part.LineSegment(App.Vector(5, -52, 0), App.Vector(14, -52, 0)),
], False)
sketch19.addConstraint([
    Sketcher.Constraint("Coincident", 0, 2, 1, 1),
    Sketcher.Constraint("Coincident", 1, 2, 2, 1),
    Sketcher.Constraint("Coincident", 2, 2, 3, 1),
    Sketcher.Constraint("Coincident", 3, 2, 0, 1),
    Sketcher.Constraint("Vertical", 0),
    Sketcher.Constraint("Horizontal", 1),
    Sketcher.Constraint("Vertical", 2),
    Sketcher.Constraint("Horizontal", 3),
    Sketcher.Constraint("DistanceX", 1, 2, 1, 1, Q("9 mm")),
    Sketcher.Constraint("DistanceY", 0, 1, 0, 2, Q("60 mm")),
    Sketcher.Constraint("DistanceX", -1, 1, 0, 2, Q("14 mm")),
    Sketcher.Constraint("DistanceY", -1, 1, 0, 2, Q("8.009533 mm")),
])
pad12 = body.newObject("PartDesign::Pad", "Pad011")
pad12.Profile = sketch19
pad12.Length = 10

sketch20 = body.newObject("Sketcher::SketchObject", "Sketch019")
sketch20.AttachmentSupport = (doc.getObject("YZ_Plane"), [""])
sketch20.MapMode = "FlatFace"
sketch20.AttachmentOffset = App.Placement(App.Vector(0, 0, 137.307957), App.Rotation())
sketch20.addGeometry([
    Part.LineSegment(App.Vector(14, -52, 0), App.Vector(5, -52, 0)),
    Part.LineSegment(App.Vector(5, -52, 0), App.Vector(5, 8, 0)),
    Part.LineSegment(App.Vector(5, 8, 0), App.Vector(14, 8, 0)),
    Part.LineSegment(App.Vector(14, 8, 0), App.Vector(14, -52, 0)),
], False)
sketch20.addConstraint([
    Sketcher.Constraint("Coincident", 0, 2, 1, 1),
    Sketcher.Constraint("Coincident", 1, 2, 2, 1),
    Sketcher.Constraint("Coincident", 2, 2, 3, 1),
    Sketcher.Constraint("Coincident", 3, 2, 0, 1),
    Sketcher.Constraint("Horizontal", 0),
    Sketcher.Constraint("Vertical", 1),
    Sketcher.Constraint("Horizontal", 2),
    Sketcher.Constraint("Vertical", 3),
    Sketcher.Constraint("DistanceX", 0, 2, 0, 1, Q("9 mm")),
    Sketcher.Constraint("DistanceY", 1, 1, 1, 2, Q("60 mm")),
    Sketcher.Constraint("DistanceX", -1, 1, 0, 2, Q("5 mm")),
    Sketcher.Constraint("DistanceY", 0, 2, -1, 1, Q("51.990467 mm")),
])
pad13 = body.newObject("PartDesign::Pad", "Pad012")
pad13.Profile = sketch20
pad13.Length = 10
pad13.Reversed = True

sketch21 = body.newObject("Sketcher::SketchObject", "Sketch020")
sketch21.AttachmentSupport = (doc.getObject("XZ_Plane"), [""])
sketch21.MapMode = "FlatFace"
sketch21.AttachmentOffset = App.Placement(App.Vector(0, 0, -14), App.Rotation())
sketch21.addGeometry([
    Part.Circle(App.Vector(133.3, -44, 0), App.Vector(0, 0, 1), 1.6),
    Part.Circle(App.Vector(156.3, -44, 0), App.Vector(0, 0, 1), 1.6),
    Part.Circle(App.Vector(156.3, 0, 0), App.Vector(0, 0, 1), 1.6),
    Part.Circle(App.Vector(133.3, 0, 0), App.Vector(0, 0, 1), 1.6),
], False)
sketch21.addConstraint([
    Sketcher.Constraint("Equal", 0, 1),
    Sketcher.Constraint("Equal", 1, 2),
    Sketcher.Constraint("Equal", 2, 3),
    Sketcher.Constraint("Horizontal", 0, 3, 1, 3),
    Sketcher.Constraint("Horizontal", 2, 3, 3, 3),
    Sketcher.Constraint("Vertical", 1, 3, 2, 3),
    Sketcher.Constraint("Vertical", 0, 3, 3, 3),
    Sketcher.Constraint("Diameter", 0, Q("3.3 mm")),
    Sketcher.Constraint("DistanceX", 0, 3, 1, 3, Q("23 mm")),
    Sketcher.Constraint("DistanceY", 1, 3, 2, 3, Q("44 mm")),
    Sketcher.Constraint("DistanceX", -1, 1, 0, 3, Q("133.307957 mm")),
    Sketcher.Constraint("DistanceY", 0, 3, -1, 1, Q("43.990467 mm")),
])
doc.recompute()
hole4 = body.newObject("PartDesign::Hole", "Hole003")
hole4.Profile = sketch21
hole4.ThreadType = "None"
hole4.Diameter = 3.3
hole4.DepthType = "ThroughAll"
hole4.Reversed = True

sketch22 = body.newObject("Sketcher::SketchObject", "Sketch021")
sketch22.AttachmentSupport = (doc.getObject("XY_Plane"), [""])
sketch22.MapMode = "FlatFace"
sketch22.AttachmentOffset = App.Placement(App.Vector(0, 0, 46.729533), App.Rotation())
sketch22.addGeometry([
    Part.Circle(App.Vector(88.5, 75, 0), App.Vector(0, 0, 1), 5.2),
    Part.Circle(App.Vector(88.5, 75, 0), App.Vector(0, 0, 1), 3.2),
], False)
sketch22.addConstraint([
    Sketcher.Constraint("Coincident", 1, 3, 0, 3),
    Sketcher.Constraint("Diameter", 0, Q("10.5 mm")),
    Sketcher.Constraint("Diameter", 1, Q("6.5 mm")),
    Sketcher.Constraint("DistanceY", -1, 1, 0, 3, Q("75 mm")),
    Sketcher.Constraint("DistanceX", -1, 1, 0, 3, Q("88.507957 mm")),
])
pad14 = body.newObject("PartDesign::Pad", "Pad013")
pad14.Profile = sketch22
pad14.Length = 46.5
pad14.Reversed = True

sketch23 = body.newObject("Sketcher::SketchObject", "Sketch022")
sketch23.AttachmentSupport = (doc.getObject("XY_Plane"), [""])
sketch23.MapMode = "FlatFace"
sketch23.AttachmentOffset = App.Placement(App.Vector(0, 0, 3.729533), App.Rotation())
sketch23.addGeometry([
    Part.Circle(App.Vector(88.5, 75, 0), App.Vector(0, 0, 1), 5.2),
    Part.Circle(App.Vector(88.5, 75, 0), App.Vector(0, 0, 1), 3.2),
], False)
sketch23.addConstraint([
    Sketcher.Constraint("Coincident", 1, 3, 0, 3),
    Sketcher.Constraint("Diameter", 0, Q("10.5 mm")),
    Sketcher.Constraint("Diameter", 1, Q("6.5 mm")),
    Sketcher.Constraint("DistanceY", -1, 1, 0, 3, Q("75 mm")),
    Sketcher.Constraint("DistanceX", -1, 1, 0, 3, Q("88.507957 mm")),
])
pocket5 = body.newObject("PartDesign::Pocket", "Pocket004")
pocket5.Profile = sketch23
pocket5.Length = 3.5

sketch24 = body.newObject("Sketcher::SketchObject", "Sketch023")
sketch24.AttachmentSupport = (doc.getObject("XZ_Plane"), [""])
sketch24.MapMode = "FlatFace"
sketch24.AttachmentOffset = App.Placement(App.Vector(0, 0, -14), App.Rotation())
sketch24.addGeometry([
    Part.Circle(App.Vector(73.5, 8.2, 0), App.Vector(0, 0, 1), 1.6),
    Part.Circle(App.Vector(103.5, 8.2, 0), App.Vector(0, 0, 1), 1.6),
    Part.Circle(App.Vector(103.5, 42.2, 0), App.Vector(0, 0, 1), 1.6),
    Part.Circle(App.Vector(73.5, 42.2, 0), App.Vector(0, 0, 1), 1.6),
], False)
sketch24.addConstraint([
    Sketcher.Constraint("Equal", 0, 1),
    Sketcher.Constraint("Equal", 1, 2),
    Sketcher.Constraint("Equal", 2, 3),
    Sketcher.Constraint("Horizontal", 0, 3, 1, 3),
    Sketcher.Constraint("Horizontal", 2, 3, 3, 3),
    Sketcher.Constraint("Vertical", 1, 3, 2, 3),
    Sketcher.Constraint("Vertical", 0, 3, 3, 3),
    Sketcher.Constraint("Diameter", 0, Q("3.3 mm")),
    Sketcher.Constraint("DistanceX", 0, 3, 1, 3, Q("30 mm")),
    Sketcher.Constraint("DistanceY", 1, 3, 2, 3, Q("34 mm")),
    Sketcher.Constraint("DistanceX", -1, 1, 0, 3, Q("73.507957 mm")),
    Sketcher.Constraint("DistanceY", -1, 1, 0, 3, Q("8.229533 mm")),
])
doc.recompute()
hole5 = body.newObject("PartDesign::Hole", "Hole004")
hole5.Profile = sketch24
hole5.ThreadType = "None"
hole5.Diameter = 3.3
hole5.DepthType = "ThroughAll"
hole5.Reversed = True

sketch25 = body.newObject("Sketcher::SketchObject", "Sketch024")
sketch25.AttachmentSupport = (doc.getObject("YZ_Plane"), [""])
sketch25.MapMode = "FlatFace"
sketch25.AttachmentOffset = App.Placement(App.Vector(0, 0, 313.507957), App.Rotation())
sketch25.addGeometry([
    Part.LineSegment(App.Vector(5, 125, 0), App.Vector(0, 125, 0)),
    Part.LineSegment(App.Vector(0, 125, 0), App.Vector(0, -75, 0)),
    Part.LineSegment(App.Vector(0, -75, 0), App.Vector(5, -75, 0)),
    Part.LineSegment(App.Vector(5, -75, 0), App.Vector(5, 125, 0)),
], False)
sketch25.addConstraint([
    Sketcher.Constraint("Coincident", 0, 2, 1, 1),
    Sketcher.Constraint("Coincident", 1, 2, 2, 1),
    Sketcher.Constraint("Coincident", 2, 2, 3, 1),
    Sketcher.Constraint("Coincident", 3, 2, 0, 1),
    Sketcher.Constraint("Horizontal", 0),
    Sketcher.Constraint("Vertical", 1),
    Sketcher.Constraint("Horizontal", 2),
    Sketcher.Constraint("Vertical", 3),
    Sketcher.Constraint("PointOnObject", 0, 2, -2),
    Sketcher.Constraint("DistanceX", 0, 2, 0, 1, Q("5 mm")),
    Sketcher.Constraint("DistanceY", 1, 2, 1, 1, Q("200 mm")),
    Sketcher.Constraint("DistanceY", -1, 1, 0, 2, Q("125.229533 mm")),
])
pocket6 = body.newObject("PartDesign::Pocket", "Pocket005")
pocket6.Profile = sketch25
pocket6.Length = 100

doc.recompute()
